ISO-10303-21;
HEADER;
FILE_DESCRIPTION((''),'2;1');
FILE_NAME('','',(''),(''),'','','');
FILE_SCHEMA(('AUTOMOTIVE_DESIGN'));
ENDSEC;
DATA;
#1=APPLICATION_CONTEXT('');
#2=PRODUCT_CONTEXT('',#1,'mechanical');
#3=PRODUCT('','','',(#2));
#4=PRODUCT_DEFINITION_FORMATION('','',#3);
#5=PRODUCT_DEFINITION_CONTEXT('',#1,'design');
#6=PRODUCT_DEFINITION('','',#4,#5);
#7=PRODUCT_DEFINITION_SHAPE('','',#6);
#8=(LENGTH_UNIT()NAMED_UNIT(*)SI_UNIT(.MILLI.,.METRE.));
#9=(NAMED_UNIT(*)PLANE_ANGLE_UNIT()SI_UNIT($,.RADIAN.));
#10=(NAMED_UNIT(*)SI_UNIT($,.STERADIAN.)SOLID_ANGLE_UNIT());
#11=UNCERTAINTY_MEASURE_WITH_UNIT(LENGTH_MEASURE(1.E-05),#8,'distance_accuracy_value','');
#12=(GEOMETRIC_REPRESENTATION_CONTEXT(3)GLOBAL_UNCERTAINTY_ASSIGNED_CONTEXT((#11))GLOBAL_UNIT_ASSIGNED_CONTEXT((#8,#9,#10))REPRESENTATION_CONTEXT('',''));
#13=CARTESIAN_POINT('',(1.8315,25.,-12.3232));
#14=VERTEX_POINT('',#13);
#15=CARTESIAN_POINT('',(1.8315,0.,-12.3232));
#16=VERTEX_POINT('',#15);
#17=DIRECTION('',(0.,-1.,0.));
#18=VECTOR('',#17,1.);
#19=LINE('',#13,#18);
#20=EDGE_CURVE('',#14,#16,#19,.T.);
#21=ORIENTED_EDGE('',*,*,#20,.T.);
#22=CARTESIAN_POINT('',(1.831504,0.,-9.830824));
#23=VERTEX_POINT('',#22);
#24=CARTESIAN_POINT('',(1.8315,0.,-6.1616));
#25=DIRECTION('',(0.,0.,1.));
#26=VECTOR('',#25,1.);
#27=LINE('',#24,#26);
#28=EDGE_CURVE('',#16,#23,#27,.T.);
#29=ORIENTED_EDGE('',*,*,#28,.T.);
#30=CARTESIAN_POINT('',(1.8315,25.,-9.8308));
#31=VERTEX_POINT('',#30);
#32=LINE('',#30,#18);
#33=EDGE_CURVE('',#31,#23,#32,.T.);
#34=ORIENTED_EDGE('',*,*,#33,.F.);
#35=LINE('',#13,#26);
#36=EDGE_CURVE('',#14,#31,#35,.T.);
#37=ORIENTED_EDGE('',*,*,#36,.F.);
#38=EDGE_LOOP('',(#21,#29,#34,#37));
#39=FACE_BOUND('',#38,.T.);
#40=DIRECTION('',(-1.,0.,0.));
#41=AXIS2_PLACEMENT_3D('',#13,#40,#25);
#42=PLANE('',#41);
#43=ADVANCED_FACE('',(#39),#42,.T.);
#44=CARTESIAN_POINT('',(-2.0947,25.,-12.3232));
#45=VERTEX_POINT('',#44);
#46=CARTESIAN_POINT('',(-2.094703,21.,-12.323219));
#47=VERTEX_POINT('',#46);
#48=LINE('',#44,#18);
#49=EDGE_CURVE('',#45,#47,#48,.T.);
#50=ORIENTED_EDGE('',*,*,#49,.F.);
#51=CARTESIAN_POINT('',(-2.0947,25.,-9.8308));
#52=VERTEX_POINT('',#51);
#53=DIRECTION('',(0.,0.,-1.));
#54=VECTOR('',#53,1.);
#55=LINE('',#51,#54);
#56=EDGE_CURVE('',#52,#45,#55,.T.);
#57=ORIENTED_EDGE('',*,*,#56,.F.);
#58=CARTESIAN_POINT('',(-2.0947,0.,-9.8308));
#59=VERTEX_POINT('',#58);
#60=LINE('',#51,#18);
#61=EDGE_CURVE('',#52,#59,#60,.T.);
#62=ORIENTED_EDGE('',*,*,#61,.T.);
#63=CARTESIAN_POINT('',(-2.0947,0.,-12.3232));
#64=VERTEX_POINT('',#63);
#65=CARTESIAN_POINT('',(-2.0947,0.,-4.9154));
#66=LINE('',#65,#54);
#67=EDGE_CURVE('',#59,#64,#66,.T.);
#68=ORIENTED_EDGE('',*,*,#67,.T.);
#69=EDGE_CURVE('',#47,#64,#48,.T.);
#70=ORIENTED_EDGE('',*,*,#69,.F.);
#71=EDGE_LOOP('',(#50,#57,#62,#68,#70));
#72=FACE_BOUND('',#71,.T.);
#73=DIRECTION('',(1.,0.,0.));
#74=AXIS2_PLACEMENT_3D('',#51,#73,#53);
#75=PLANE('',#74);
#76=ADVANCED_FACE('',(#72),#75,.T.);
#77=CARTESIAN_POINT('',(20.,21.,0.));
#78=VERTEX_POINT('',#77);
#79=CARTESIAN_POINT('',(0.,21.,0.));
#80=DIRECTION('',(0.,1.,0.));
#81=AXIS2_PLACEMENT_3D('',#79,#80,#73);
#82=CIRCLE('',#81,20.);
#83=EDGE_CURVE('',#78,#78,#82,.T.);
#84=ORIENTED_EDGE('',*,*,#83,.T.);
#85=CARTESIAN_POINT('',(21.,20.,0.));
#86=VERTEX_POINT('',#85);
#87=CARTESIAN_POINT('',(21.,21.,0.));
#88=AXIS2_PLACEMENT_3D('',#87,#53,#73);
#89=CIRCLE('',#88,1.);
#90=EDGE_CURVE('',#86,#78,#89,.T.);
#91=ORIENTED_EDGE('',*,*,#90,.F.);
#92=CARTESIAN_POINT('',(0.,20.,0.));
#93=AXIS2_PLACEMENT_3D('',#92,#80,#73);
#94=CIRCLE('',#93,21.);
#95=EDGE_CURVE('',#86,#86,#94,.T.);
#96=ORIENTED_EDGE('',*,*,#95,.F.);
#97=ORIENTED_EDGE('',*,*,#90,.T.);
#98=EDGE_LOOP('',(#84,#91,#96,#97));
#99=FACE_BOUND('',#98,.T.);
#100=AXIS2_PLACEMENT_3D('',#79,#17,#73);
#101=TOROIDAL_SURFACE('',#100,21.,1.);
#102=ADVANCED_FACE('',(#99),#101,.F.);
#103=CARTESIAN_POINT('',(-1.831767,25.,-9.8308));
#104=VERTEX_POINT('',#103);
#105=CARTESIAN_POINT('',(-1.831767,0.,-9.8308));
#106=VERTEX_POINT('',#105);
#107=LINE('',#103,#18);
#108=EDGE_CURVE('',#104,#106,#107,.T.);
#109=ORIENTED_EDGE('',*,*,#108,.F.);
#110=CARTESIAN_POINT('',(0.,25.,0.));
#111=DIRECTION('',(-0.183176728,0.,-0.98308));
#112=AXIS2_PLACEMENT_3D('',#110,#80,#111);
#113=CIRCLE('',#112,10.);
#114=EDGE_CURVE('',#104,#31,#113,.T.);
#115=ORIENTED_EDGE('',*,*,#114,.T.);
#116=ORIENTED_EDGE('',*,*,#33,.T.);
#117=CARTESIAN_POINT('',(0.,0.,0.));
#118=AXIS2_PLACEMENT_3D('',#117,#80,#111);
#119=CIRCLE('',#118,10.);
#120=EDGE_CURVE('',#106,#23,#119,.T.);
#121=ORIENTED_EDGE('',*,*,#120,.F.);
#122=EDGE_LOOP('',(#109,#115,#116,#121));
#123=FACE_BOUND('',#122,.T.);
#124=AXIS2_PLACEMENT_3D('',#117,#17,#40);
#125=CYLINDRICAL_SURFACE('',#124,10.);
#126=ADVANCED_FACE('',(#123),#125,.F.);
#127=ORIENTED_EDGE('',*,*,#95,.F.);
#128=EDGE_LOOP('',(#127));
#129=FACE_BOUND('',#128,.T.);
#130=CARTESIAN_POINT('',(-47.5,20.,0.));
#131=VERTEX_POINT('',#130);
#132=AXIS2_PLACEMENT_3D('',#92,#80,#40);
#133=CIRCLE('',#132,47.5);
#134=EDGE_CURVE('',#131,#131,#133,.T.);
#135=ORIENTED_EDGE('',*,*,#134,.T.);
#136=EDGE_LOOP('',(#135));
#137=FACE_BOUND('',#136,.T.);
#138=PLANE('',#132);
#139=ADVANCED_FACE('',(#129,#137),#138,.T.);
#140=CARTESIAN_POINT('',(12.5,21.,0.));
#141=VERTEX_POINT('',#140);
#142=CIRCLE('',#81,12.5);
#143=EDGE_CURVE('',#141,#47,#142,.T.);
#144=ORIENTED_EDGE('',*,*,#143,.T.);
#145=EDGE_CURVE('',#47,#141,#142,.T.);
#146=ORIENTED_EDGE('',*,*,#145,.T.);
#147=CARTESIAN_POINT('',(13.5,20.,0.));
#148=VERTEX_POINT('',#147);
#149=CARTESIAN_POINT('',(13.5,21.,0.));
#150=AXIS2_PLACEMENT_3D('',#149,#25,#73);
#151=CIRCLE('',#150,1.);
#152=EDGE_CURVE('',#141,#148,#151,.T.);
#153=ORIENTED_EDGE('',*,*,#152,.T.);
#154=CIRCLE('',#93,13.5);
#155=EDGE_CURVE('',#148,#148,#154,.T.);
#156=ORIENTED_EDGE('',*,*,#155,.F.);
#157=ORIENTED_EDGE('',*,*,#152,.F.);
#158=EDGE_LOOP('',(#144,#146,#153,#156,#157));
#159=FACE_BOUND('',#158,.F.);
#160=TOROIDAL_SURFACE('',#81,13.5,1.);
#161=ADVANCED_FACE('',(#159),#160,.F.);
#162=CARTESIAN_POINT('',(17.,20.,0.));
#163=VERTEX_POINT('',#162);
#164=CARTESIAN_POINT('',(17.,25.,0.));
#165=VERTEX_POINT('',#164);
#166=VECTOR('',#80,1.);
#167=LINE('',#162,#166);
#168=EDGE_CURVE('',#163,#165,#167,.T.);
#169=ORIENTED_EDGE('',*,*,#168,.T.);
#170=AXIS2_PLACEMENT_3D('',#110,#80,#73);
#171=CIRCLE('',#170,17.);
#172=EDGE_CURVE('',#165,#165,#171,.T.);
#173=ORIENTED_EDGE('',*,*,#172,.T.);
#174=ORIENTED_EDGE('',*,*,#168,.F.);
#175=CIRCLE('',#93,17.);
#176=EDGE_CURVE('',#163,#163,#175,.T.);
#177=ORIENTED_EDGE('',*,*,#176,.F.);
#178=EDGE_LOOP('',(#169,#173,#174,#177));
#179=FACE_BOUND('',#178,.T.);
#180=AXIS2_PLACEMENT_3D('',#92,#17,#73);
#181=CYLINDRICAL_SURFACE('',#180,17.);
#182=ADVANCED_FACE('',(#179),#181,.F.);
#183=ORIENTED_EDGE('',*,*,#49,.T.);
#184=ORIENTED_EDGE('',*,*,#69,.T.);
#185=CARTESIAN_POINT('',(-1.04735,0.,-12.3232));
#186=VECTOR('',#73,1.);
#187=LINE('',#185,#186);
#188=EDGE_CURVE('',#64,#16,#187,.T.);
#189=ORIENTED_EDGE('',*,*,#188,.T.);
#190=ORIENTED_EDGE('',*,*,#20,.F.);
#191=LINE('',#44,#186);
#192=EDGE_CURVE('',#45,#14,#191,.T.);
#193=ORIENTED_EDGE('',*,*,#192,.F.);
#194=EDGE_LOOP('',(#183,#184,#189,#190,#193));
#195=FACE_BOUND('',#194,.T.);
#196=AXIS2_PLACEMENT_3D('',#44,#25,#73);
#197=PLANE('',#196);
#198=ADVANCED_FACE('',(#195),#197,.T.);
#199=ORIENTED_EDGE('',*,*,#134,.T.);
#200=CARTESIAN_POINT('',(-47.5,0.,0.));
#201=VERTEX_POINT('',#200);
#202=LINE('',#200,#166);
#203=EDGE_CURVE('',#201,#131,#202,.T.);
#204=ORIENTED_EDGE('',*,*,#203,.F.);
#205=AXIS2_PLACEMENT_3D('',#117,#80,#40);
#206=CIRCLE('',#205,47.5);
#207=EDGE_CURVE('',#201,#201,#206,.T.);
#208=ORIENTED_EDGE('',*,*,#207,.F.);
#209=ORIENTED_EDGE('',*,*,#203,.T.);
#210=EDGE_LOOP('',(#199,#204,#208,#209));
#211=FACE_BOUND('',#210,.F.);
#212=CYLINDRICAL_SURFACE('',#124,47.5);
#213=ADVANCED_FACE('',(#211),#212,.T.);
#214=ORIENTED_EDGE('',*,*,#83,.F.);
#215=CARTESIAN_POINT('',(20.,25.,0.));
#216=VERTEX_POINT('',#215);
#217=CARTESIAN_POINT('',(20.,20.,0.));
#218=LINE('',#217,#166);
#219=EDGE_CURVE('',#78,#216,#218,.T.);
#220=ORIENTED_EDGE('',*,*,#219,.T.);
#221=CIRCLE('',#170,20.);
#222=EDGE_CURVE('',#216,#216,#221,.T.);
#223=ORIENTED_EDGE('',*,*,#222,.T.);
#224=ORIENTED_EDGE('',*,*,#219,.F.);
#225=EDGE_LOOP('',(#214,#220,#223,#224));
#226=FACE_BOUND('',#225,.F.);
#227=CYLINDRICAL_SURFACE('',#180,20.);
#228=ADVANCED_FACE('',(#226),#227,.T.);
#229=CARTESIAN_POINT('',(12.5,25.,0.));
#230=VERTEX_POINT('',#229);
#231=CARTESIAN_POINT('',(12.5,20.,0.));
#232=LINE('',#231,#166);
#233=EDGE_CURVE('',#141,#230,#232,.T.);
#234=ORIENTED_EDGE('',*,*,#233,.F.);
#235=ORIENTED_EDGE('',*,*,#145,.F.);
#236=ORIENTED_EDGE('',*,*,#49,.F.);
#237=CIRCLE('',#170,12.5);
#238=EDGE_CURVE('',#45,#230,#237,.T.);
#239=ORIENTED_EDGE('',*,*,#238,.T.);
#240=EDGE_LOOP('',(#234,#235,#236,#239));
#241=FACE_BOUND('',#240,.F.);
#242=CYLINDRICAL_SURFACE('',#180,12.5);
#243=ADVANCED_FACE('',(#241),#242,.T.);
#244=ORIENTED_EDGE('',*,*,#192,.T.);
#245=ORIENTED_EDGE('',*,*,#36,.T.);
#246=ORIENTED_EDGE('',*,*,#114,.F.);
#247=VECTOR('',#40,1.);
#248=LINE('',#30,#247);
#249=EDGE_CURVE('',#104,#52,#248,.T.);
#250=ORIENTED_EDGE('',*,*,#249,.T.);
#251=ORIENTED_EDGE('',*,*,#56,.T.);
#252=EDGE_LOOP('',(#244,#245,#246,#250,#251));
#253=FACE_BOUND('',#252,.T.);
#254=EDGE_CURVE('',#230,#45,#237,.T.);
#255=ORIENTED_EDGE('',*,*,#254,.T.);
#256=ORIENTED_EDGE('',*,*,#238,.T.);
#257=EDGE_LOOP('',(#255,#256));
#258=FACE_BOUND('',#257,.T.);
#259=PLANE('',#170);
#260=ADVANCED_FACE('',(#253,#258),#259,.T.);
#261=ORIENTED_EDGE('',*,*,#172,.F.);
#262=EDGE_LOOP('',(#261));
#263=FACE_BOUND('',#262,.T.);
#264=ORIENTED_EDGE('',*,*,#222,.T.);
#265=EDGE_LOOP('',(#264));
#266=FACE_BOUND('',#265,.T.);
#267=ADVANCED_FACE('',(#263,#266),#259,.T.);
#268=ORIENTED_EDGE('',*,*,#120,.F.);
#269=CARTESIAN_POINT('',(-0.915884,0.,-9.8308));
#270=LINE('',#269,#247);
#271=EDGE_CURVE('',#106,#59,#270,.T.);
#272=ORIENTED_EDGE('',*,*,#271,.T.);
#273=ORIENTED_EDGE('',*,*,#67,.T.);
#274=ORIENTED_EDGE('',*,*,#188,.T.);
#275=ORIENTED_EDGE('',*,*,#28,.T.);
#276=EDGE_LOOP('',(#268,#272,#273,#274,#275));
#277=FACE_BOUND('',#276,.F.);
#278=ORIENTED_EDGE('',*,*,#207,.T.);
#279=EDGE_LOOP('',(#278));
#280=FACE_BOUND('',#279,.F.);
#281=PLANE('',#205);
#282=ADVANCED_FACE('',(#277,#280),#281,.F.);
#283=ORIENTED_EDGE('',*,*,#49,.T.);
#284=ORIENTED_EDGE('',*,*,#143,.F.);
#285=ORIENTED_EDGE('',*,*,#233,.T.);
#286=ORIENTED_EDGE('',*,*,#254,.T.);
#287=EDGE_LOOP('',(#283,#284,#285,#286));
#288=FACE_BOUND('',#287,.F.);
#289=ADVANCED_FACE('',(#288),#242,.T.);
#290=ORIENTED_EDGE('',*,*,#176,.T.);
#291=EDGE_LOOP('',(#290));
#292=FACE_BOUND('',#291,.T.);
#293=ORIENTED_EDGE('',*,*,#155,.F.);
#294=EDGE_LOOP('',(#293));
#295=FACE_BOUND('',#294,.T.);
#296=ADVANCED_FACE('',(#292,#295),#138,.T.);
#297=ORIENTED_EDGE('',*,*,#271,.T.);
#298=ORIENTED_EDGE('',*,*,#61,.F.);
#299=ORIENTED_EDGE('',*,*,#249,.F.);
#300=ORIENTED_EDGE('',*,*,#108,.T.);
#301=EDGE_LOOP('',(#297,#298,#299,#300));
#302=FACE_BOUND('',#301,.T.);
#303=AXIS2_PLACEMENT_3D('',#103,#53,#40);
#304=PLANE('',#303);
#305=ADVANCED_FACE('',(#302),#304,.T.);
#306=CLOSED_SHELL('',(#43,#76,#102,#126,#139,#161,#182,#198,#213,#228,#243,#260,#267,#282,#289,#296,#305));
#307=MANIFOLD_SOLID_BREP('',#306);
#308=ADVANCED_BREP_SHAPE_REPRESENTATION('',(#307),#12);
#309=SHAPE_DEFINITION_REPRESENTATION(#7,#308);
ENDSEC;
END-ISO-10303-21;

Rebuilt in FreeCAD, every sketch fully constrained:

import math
import FreeCAD as App
import Part
import Sketcher


def edges_at(feature, points):
    """Names of the edges that pass closest to the given points."""
    edges = feature.Shape.Edges
    near = lambda p: min(range(len(edges)), key=lambda i: edges[i].distToShape(Part.Vertex(*p))[0])
    return sorted({f"Edge{near(p) + 1}" for p in points})

doc = App.newDocument("Part")
body = doc.addObject("PartDesign::Body", "Body")

sketch1 = body.newObject("Sketcher::SketchObject", "Sketch")
sketch1.AttachmentSupport = (doc.getObject("XZ_Plane"), [""])
sketch1.MapMode = "FlatFace"
sketch1.addGeometry(Part.Circle(App.Vector(0, 0, 0), App.Vector(0, 0, 1), 47.5), False)
sketch1.addGeometry(Part.Circle(App.Vector(0, 0, 0), App.Vector(0, 0, 1), 10), False)
sketch1.addConstraint(Sketcher.Constraint("Coincident", 0, 3, -1, 1))
sketch1.addConstraint(Sketcher.Constraint("Coincident", 1, 3, -1, 1))
sketch1.addConstraint(Sketcher.Constraint("Diameter", 0, 95.0))
sketch1.addConstraint(Sketcher.Constraint("Diameter", 1, 20.0))
pad1 = body.newObject("PartDesign::Pad", "Pad")
pad1.Profile = sketch1
pad1.Length = 20
pad1.Reversed = True

sketch2 = body.newObject("Sketcher::SketchObject", "Sketch001")
sketch2.AttachmentSupport = (doc.getObject("XZ_Plane"), [""])
sketch2.MapMode = "FlatFace"
sketch2.AttachmentOffset = App.Placement(App.Vector(0, 0, -20), App.Rotation())
sketch2.addGeometry(Part.Circle(App.Vector(0, 0, 0), App.Vector(0, 0, 1), 12.5), False)
sketch2.addGeometry(Part.Circle(App.Vector(0, 0, 0), App.Vector(0, 0, 1), 10), False)
sketch2.addConstraint(Sketcher.Constraint("Coincident", 0, 3, -1, 1))
sketch2.addConstraint(Sketcher.Constraint("Coincident", 1, 3, -1, 1))
sketch2.addConstraint(Sketcher.Constraint("Diameter", 0, 25.0))
sketch2.addConstraint(Sketcher.Constraint("Diameter", 1, 20.0))
pad2 = body.newObject("PartDesign::Pad", "Pad001")
pad2.Profile = sketch2
pad2.Length = 5
pad2.Reversed = True

sketch3 = body.newObject("Sketcher::SketchObject", "Sketch002")
sketch3.AttachmentSupport = (doc.getObject("XZ_Plane"), [""])
sketch3.MapMode = "FlatFace"
sketch3.AttachmentOffset = App.Placement(App.Vector(0, 0, -20), App.Rotation())
sketch3.addGeometry(Part.Circle(App.Vector(0, 0, 0), App.Vector(0, 0, 1), 20), False)
sketch3.addGeometry(Part.Circle(App.Vector(0, 0, 0), App.Vector(0, 0, 1), 17), False)
sketch3.addConstraint(Sketcher.Constraint("Coincident", 0, 3, -1, 1))
sketch3.addConstraint(Sketcher.Constraint("Coincident", 1, 3, -1, 1))
sketch3.addConstraint(Sketcher.Constraint("Diameter", 0, 40.0))
sketch3.addConstraint(Sketcher.Constraint("Diameter", 1, 34.0))
pad3 = body.newObject("PartDesign::Pad", "Pad002")
pad3.Profile = sketch3
pad3.Length = 5
pad3.Reversed = True
doc.recompute()

fillet = body.newObject("PartDesign::Fillet", "Fillet")
fillet.Base = (pad3, edges_at(pad3, [(-20, 20, 0), (-12.5, 20, 0)]))
fillet.Radius = 1

sketch4 = body.newObject("Sketcher::SketchObject", "Sketch003")
sketch4.AttachmentSupport = (doc.getObject("XZ_Plane"), [""])
sketch4.MapMode = "FlatFace"
sketch4.AttachmentOffset = App.Placement(App.Vector(0, 0, -25), App.Rotation())
sketch4.addGeometry(Part.LineSegment(App.Vector(1.8315, -12.3232, 0), App.Vector(-2.0947, -12.3232, 0)), False)
sketch4.addGeometry(Part.LineSegment(App.Vector(-2.0947, -12.3232, 0), App.Vector(-2.0947, -9.8308, 0)), False)
sketch4.addGeometry(Part.LineSegment(App.Vector(-2.0947, -9.8308, 0), App.Vector(-1.831767, -9.8308, 0)), False)
sketch4.addGeometry(Part.ArcOfCircle(Part.Circle(App.Vector(0, 0, 0), App.Vector(0, 0, 1), 10), math.radians(-100.55485), math.radians(-79.446655)), False)
sketch4.addGeometry(Part.LineSegment(App.Vector(1.8315, -9.8308, 0), App.Vector(1.8315, -12.3232, 0)), False)
sketch4.addConstraint(Sketcher.Constraint("Coincident", 0, 2, 1, 1))
sketch4.addConstraint(Sketcher.Constraint("Coincident", 1, 2, 2, 1))
sketch4.addConstraint(Sketcher.Constraint("Coincident", 2, 2, 3, 1))
sketch4.addConstraint(Sketcher.Constraint("Coincident", 3, 2, 4, 1))
sketch4.addConstraint(Sketcher.Constraint("Coincident", 4, 2, 0, 1))
sketch4.addConstraint(Sketcher.Constraint("Horizontal", 0))
sketch4.addConstraint(Sketcher.Constraint("Vertical", 1))
sketch4.addConstraint(Sketcher.Constraint("Horizontal", 2))
sketch4.addConstraint(Sketcher.Constraint("Vertical", 4))
sketch4.addConstraint(Sketcher.Constraint("Coincident", 3, 3, -1, 1))
sketch4.addConstraint(Sketcher.Constraint("Horizontal", 2, 2, 3, 2))
sketch4.addConstraint(Sketcher.Constraint("Radius", 3, 10.0))
sketch4.addConstraint(Sketcher.Constraint("DistanceX", 2, 1, 2, 2, 0.263))
sketch4.addConstraint(Sketcher.Constraint("DistanceX", 0, 2, 0, 1, 3.9262))
sketch4.addConstraint(Sketcher.Constraint("DistanceY", 1, 1, 1, 2, 2.4924))
pocket1 = body.newObject("PartDesign::Pocket", "Pocket")
pocket1.Profile = sketch4
pocket1.Type = "ThroughAll"
pocket1.Reversed = True

doc.recompute()
